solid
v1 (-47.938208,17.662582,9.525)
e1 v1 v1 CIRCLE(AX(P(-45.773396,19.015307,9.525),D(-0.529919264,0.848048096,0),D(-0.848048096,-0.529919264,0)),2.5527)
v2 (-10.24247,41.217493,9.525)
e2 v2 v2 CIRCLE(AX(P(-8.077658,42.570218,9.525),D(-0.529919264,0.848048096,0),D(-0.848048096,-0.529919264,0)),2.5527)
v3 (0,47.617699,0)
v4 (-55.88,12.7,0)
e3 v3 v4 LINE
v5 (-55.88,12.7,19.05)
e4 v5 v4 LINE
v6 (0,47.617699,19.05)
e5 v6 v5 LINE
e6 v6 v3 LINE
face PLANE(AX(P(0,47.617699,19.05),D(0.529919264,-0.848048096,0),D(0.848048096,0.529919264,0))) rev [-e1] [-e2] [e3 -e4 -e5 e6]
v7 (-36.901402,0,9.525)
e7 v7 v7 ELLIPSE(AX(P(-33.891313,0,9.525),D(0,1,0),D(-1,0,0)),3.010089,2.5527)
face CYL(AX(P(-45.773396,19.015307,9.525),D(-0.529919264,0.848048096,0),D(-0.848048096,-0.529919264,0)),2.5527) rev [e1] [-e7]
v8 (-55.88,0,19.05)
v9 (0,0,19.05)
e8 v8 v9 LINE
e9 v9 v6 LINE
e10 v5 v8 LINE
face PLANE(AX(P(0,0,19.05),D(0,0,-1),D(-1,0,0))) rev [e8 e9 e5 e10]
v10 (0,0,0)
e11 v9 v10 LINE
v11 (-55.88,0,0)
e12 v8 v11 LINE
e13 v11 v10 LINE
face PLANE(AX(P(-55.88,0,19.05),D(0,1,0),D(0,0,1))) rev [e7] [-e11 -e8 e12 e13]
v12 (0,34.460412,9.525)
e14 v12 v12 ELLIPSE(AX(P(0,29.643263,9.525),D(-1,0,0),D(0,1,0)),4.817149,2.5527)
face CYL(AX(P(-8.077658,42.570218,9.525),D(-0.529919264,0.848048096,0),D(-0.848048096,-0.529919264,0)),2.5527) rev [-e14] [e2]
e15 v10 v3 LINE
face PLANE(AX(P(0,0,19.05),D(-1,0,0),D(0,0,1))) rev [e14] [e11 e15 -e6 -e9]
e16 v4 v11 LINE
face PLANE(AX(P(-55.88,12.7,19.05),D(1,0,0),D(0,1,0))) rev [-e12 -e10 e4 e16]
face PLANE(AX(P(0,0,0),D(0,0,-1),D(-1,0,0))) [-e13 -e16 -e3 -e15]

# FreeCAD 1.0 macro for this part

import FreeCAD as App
import Part
import Sketcher

V = App.Vector
Q = App.Units.Quantity


def add_polygon(sketch, points):
    """Adds a closed chain of lines whose ends are joined by coincident constraints."""
    first, n = sketch.GeometryCount, len(points)
    for a, b in zip(points, points[1:] + points[:1]):
        sketch.addGeometry(Part.LineSegment(App.Vector(*a, 0), App.Vector(*b, 0)), False)
    for i in range(n):
        sketch.addConstraint(Sketcher.Constraint("Coincident", first + i, 2, first + (i + 1) % n, 1))

doc = App.newDocument("Part")
body = doc.addObject("PartDesign::Body", "Body")

# Sketch on XY plane
sketch1 = body.newObject("Sketcher::SketchObject", "Sketch")
sketch1.AttachmentSupport = (doc.getObject("XY_Plane"), [""])
sketch1.MapMode = "FlatFace"
add_polygon(sketch1, [(0, 48), (-56, 13), (-56, 0), (0, 0)])  # lines 0-3
sketch1.addConstraint([
    Sketcher.Constraint("Vertical", 1),
    Sketcher.Constraint("Horizontal", 2),
    Sketcher.Constraint("Vertical", 3),
    Sketcher.Constraint("Coincident", 2, 2, -1, 1),
    Sketcher.Constraint("DistanceX", 2, 1, 2, 2, Q("2.2 in")),
    Sketcher.Constraint("DistanceY", 1, 2, 1, 1, Q("0.5 in")),
    Sketcher.Constraint("Angle", 0, Q("-148 deg")),
])
pad1 = body.newObject("PartDesign::Pad", "Pad")
pad1.Profile = sketch1
pad1.Length = Q("0.75 in")

# Sketch on an angled plane
sketch2 = body.newObject("Sketcher::SketchObject", "Sketch001")
sketch2.Placement = App.Placement(V(-21.399252, 34.245962, 0), App.Rotation(V(0.848048096, 0.529919264, 0), V(0, 0, -0.999999999), V(-0.529919264, 0.848048096, 0), "ZXY"))
sketch2.addGeometry([
    Part.Circle(V(-28.7, -9.5, 0), V(0, 0, 1), 2.6),
    Part.Circle(V(15.7, -9.5, 0), V(0, 0, 1), 2.6),
], False)
sketch2.addConstraint([
    Sketcher.Constraint("Equal", 0, 1),
    Sketcher.Constraint("Horizontal", 0, 3, 1, 3),
    Sketcher.Constraint("Diameter", 0, Q("0.201 in")),
    Sketcher.Constraint("DistanceX", 0, 3, 1, 3, Q("1.75 in")),
    Sketcher.Constraint("DistanceY", 0, 3, -1, 1, Q("0.375 in")),
    Sketcher.Constraint("DistanceX", 0, 3, -1, 1, 28.741464),
])
doc.recompute()
hole = body.newObject("PartDesign::Hole", "Hole")
hole.Profile = sketch2
hole.ThreadType = "None"
hole.Diameter = Q("0.201 in")
hole.DepthType = "Dimension"
hole.Depth = Q("1 in")
hole.DrillPoint = "Flat"

doc.recompute()
